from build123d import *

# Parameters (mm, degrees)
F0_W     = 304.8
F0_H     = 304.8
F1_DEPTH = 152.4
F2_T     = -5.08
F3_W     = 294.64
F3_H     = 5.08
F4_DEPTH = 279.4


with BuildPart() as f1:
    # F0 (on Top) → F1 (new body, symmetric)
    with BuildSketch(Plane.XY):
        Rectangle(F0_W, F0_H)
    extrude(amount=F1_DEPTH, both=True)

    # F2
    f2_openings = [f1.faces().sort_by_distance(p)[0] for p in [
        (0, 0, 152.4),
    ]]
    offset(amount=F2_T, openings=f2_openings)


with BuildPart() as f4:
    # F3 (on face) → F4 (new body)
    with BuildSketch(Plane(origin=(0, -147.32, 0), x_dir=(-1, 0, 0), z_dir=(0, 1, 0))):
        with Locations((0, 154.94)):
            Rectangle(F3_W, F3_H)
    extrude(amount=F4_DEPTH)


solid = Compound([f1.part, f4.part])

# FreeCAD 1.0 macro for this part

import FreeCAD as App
import Part
import Sketcher
from FreeCAD import Vector
Q = App.Units.Quantity


def faces_at(feature, points):
    """Names of the faces that lie closest to the given points."""
    faces = feature.Shape.Faces
    near = lambda p: min(range(len(faces)), key=lambda i: faces[i].distToShape(Part.Vertex(*p))[0])
    return sorted({f"Face{near(p) + 1}" for p in points})

doc = App.newDocument("Part")
body = doc.addObject("PartDesign::Body", "Body")

sketch1 = doc.addObject("Sketcher::SketchObject", "Sketch")
body.addObject(sketch1)
sketch1.AttachmentSupport = (doc.XY_Plane, [""])
sketch1.MapMode = "FlatFace"
sketch1.addGeometry(Part.LineSegment(Vector(-152.4, 152.4, 0), Vector(-152.4, -152.4, 0)), False)
sketch1.addGeometry(Part.LineSegment(Vector(-152.4, -152.4, 0), Vector(152.4, -152.4, 0)), False)
sketch1.addGeometry(Part.LineSegment(Vector(152.4, -152.4, 0), Vector(152.4, 152.4, 0)), False)
sketch1.addGeometry(Part.LineSegment(Vector(152.4, 152.4, 0), Vector(-152.4, 152.4, 0)), False)
sketch1.addConstraint(Sketcher.Constraint("Coincident", 0, 2, 1, 1))
sketch1.addConstraint(Sketcher.Constraint("Coincident", 1, 2, 2, 1))
sketch1.addConstraint(Sketcher.Constraint("Coincident", 2, 2, 3, 1))
sketch1.addConstraint(Sketcher.Constraint("Coincident", 3, 2, 0, 1))
sketch1.addConstraint(Sketcher.Constraint("Vertical", 0))
sketch1.addConstraint(Sketcher.Constraint("Horizontal", 1))
sketch1.addConstraint(Sketcher.Constraint("Vertical", 2))
sketch1.addConstraint(Sketcher.Constraint("Horizontal", 3))
sketch1.addConstraint(Sketcher.Constraint("Symmetric", 0, 2, 2, 2, -1, 1))
sketch1.addConstraint(Sketcher.Constraint("Equal", 3, 0))
sketch1.addConstraint(Sketcher.Constraint("DistanceX", 1, 1, 1, 2, Q("12 in")))
pad1 = doc.addObject("PartDesign::Pad", "Pad")
body.addObject(pad1)
pad1.Profile = sketch1
pad1.Length = Q("12 in")
pad1.Midplane = True
doc.recompute()

thickness = doc.addObject("PartDesign::Thickness", "Thickness")
body.addObject(thickness)
thickness.Base = (pad1, faces_at(pad1, [(0, 0, 152.4)]))
thickness.Value = Q("0.2 in")
thickness.Reversed = True
thickness.Join = "Arc"
body2 = doc.addObject("PartDesign::Body", "Body001")

sketch2 = doc.addObject("Sketcher::SketchObject", "Sketch001")
body2.addObject(sketch2)
sketch2.AttachmentSupport = (doc.getObject("XZ_Plane001"), [""])
sketch2.MapMode = "FlatFace"
sketch2.AttachmentOffset = App.Placement(Vector(0, 0, 5.8 * 25.4), App.Rotation())
sketch2.addGeometry(Part.LineSegment(Vector(147.32, 157.48, 0), Vector(147.32, 152.4, 0)), False)
sketch2.addGeometry(Part.LineSegment(Vector(147.32, 152.4, 0), Vector(-147.32, 152.4, 0)), False)
sketch2.addGeometry(Part.LineSegment(Vector(-147.32, 152.4, 0), Vector(-147.32, 157.48, 0)), False)
sketch2.addGeometry(Part.LineSegment(Vector(-147.32, 157.48, 0), Vector(147.32, 157.48, 0)), False)
sketch2.addConstraint(Sketcher.Constraint("Coincident", 0, 2, 1, 1))
sketch2.addConstraint(Sketcher.Constraint("Coincident", 1, 2, 2, 1))
sketch2.addConstraint(Sketcher.Constraint("Coincident", 2, 2, 3, 1))
sketch2.addConstraint(Sketcher.Constraint("Coincident", 3, 2, 0, 1))
sketch2.addConstraint(Sketcher.Constraint("Vertical", 0))
sketch2.addConstraint(Sketcher.Constraint("Horizontal", 1))
sketch2.addConstraint(Sketcher.Constraint("Vertical", 2))
sketch2.addConstraint(Sketcher.Constraint("Horizontal", 3))
sketch2.addConstraint(Sketcher.Constraint("DistanceX", 1, 2, 1, 1, Q("11.6 in")))
sketch2.addConstraint(Sketcher.Constraint("DistanceY", 0, 2, 0, 1, Q("0.2 in")))
sketch2.addConstraint(Sketcher.Constraint("DistanceY", -1, 1, 0, 2, Q("6 in")))
sketch2.addConstraint(Sketcher.Constraint("DistanceX", -1, 1, 0, 2, Q("5.8 in")))
pad2 = doc.addObject("PartDesign::Pad", "Pad001")
body2.addObject(pad2)
pad2.Profile = sketch2
pad2.Length = Q("11 in")
pad2.Reversed = True

doc.recompute()
